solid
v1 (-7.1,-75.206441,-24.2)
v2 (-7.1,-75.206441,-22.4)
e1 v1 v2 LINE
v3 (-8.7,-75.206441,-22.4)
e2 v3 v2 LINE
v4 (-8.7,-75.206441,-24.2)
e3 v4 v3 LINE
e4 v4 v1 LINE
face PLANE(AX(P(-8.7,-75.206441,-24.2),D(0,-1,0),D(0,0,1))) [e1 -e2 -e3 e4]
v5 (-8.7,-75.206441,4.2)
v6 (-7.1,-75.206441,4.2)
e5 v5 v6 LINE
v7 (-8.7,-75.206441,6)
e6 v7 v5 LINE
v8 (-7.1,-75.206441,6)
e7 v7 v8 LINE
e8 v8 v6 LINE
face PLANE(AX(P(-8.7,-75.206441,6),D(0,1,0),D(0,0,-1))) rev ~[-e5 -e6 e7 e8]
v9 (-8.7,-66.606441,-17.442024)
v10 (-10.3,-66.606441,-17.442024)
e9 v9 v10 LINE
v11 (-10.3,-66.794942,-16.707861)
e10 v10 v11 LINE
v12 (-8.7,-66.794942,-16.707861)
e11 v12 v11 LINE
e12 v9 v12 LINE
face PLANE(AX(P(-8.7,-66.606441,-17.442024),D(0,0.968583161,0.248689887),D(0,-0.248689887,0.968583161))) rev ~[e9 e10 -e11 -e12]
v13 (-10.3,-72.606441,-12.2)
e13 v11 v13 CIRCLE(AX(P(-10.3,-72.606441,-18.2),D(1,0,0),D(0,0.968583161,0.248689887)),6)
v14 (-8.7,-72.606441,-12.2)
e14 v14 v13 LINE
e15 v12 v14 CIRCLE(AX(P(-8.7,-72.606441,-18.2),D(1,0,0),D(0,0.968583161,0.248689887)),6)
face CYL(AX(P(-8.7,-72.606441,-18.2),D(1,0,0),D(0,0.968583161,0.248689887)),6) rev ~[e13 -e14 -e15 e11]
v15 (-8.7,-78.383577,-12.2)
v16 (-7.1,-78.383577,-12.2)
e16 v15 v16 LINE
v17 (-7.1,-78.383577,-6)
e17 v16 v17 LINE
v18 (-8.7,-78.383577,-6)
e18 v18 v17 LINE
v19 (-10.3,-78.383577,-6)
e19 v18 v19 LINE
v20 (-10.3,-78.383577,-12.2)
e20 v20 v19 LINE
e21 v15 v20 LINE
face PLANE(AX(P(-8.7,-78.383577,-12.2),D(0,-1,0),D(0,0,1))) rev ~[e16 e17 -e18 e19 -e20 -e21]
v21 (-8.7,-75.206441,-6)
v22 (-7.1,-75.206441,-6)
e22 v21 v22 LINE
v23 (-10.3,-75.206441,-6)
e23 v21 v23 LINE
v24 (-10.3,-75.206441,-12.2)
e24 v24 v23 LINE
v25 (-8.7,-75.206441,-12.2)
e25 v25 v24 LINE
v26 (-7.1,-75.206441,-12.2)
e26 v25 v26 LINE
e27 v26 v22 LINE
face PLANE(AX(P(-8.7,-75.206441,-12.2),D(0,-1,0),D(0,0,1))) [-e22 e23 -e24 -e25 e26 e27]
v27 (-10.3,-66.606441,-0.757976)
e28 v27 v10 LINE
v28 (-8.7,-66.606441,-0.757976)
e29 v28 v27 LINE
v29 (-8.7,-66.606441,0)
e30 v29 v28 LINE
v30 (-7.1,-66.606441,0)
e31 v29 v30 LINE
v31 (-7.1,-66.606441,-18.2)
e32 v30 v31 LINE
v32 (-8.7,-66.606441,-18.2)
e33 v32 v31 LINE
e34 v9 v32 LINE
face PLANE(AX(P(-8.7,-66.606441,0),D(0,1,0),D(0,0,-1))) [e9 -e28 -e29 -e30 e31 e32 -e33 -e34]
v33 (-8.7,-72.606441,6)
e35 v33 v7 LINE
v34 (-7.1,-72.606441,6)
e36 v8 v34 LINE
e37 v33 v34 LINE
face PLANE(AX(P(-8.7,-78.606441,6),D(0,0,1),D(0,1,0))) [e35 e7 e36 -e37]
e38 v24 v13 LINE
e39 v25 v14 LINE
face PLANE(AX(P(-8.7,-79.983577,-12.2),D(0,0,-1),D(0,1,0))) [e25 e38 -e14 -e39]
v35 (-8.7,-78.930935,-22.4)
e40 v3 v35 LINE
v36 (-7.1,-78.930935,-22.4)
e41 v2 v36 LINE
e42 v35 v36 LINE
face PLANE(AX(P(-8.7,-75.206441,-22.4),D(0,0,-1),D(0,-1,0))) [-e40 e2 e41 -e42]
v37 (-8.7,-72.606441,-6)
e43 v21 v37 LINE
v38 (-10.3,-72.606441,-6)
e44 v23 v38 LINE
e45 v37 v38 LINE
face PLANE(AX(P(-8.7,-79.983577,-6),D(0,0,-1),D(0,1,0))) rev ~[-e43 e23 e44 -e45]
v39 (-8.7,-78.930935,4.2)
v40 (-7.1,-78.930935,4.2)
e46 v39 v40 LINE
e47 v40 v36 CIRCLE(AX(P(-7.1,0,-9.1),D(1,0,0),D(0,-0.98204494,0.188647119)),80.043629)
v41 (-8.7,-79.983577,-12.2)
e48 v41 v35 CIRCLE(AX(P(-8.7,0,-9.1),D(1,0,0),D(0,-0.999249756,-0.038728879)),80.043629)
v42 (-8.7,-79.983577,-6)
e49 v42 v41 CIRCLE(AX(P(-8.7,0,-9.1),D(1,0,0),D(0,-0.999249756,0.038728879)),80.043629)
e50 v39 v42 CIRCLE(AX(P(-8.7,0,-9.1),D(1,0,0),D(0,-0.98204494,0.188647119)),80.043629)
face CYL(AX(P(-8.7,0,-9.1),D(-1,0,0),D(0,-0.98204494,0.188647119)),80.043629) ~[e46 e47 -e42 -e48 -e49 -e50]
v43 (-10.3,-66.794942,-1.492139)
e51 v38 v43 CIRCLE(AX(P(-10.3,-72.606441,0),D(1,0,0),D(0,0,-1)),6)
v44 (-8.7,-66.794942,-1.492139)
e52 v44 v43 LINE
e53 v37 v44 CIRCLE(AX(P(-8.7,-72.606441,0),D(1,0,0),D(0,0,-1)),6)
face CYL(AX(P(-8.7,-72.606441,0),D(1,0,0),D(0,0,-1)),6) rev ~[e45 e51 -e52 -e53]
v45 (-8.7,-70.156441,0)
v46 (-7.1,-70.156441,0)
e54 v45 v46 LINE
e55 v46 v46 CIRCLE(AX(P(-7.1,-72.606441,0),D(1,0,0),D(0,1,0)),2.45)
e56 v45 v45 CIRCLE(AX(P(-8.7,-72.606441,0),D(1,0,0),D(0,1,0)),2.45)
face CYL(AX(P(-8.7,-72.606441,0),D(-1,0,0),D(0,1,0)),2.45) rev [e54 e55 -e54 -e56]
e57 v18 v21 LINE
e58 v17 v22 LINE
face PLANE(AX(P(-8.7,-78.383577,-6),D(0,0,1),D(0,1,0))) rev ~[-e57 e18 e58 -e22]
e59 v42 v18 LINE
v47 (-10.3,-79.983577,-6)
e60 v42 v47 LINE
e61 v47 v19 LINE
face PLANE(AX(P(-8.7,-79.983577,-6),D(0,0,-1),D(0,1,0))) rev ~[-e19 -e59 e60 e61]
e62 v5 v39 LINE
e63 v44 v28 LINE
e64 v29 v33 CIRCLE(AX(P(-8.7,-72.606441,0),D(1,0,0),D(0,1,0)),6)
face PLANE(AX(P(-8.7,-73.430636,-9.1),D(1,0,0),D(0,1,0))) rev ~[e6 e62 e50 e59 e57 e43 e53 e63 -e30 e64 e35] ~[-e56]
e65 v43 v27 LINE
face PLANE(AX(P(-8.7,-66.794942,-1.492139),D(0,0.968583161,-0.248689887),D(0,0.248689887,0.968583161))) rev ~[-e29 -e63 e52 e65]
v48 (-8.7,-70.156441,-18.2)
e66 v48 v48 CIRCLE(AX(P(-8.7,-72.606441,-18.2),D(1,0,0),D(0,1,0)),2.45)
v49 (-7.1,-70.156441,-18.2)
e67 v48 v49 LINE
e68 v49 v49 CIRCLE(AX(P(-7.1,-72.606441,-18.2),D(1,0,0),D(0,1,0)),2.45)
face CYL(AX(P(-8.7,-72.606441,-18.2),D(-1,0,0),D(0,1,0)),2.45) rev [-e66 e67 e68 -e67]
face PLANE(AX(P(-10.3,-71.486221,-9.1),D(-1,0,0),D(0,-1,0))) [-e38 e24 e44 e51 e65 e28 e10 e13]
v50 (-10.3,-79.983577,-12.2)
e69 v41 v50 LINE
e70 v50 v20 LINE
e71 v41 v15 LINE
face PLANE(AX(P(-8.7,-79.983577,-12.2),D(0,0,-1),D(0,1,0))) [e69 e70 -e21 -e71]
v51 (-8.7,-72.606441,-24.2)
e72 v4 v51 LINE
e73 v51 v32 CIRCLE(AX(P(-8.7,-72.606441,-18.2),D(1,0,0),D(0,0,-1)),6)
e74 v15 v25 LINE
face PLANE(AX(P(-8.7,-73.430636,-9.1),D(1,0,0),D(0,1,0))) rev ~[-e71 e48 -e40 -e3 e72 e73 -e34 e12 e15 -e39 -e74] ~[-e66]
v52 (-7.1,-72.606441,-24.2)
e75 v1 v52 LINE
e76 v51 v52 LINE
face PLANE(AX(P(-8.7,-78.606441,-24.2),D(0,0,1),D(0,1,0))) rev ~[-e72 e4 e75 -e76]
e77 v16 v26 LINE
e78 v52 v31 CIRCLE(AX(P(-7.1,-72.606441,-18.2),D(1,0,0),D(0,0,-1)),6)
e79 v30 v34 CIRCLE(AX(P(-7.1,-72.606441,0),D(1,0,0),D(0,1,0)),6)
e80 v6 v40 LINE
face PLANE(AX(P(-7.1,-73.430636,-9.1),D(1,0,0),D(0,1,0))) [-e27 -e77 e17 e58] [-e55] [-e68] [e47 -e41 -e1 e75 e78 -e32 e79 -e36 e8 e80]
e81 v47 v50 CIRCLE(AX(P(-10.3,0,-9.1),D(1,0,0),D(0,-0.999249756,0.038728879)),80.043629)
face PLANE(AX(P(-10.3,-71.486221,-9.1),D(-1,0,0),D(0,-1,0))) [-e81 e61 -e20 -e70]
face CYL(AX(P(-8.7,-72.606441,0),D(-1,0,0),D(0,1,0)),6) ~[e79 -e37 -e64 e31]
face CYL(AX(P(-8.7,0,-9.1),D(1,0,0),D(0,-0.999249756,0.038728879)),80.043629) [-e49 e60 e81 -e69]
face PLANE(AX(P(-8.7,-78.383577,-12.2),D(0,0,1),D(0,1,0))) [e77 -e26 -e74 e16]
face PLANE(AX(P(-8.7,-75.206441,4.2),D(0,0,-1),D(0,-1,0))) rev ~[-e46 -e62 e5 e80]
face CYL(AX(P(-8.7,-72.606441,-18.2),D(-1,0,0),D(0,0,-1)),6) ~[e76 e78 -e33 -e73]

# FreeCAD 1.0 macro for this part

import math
import FreeCAD as App
import Part
import Sketcher
Q = App.Units.Quantity

doc = App.newDocument("Part")
body = doc.addObject("PartDesign::Body", "Body")

sketch1 = doc.addObject("Sketcher::SketchObject", "Sketch")
body.addObject(sketch1)
sketch1.AttachmentSupport = (doc.YZ_Plane, [""])
sketch1.MapMode = "FlatFace"
sketch1.AttachmentOffset = App.Placement(App.Vector(0, 0, -8.7), App.Rotation())
sketch1.addGeometry(Part.ArcOfCircle(Part.Circle(App.Vector(72.6, -9.1, 0), App.Vector(0, 0, 1), 80), math.radians(169), math.radians(191)), False)
sketch1.addGeometry(Part.LineSegment(App.Vector(-6, -24.2, 0), App.Vector(0, -24.2, 0)), False)
sketch1.addGeometry(Part.ArcOfCircle(Part.Circle(App.Vector(0, -18.2, 0), App.Vector(0, 0, 1), 6), math.radians(-90), math.radians(0)), False)
sketch1.addGeometry(Part.LineSegment(App.Vector(6, -18.2, 0), App.Vector(6, 0, 0)), False)
sketch1.addGeometry(Part.ArcOfCircle(Part.Circle(App.Vector(0, 0, 0), App.Vector(0, 0, 1), 6), math.radians(0), math.radians(90)), False)
sketch1.addGeometry(Part.LineSegment(App.Vector(0, 6, 0), App.Vector(-6, 6, 0)), False)
sketch1.addGeometry(Part.Circle(App.Vector(0, -18.2, 0), App.Vector(0, 0, 1), 2.5), False)
sketch1.addGeometry(Part.Circle(App.Vector(0, 0, 0), App.Vector(0, 0, 1), 2.5), False)
sketch1.addConstraint(Sketcher.Constraint("Coincident", 0, 2, 1, 1))
sketch1.addConstraint(Sketcher.Constraint("Tangent", 1, 2, 2, 1))
sketch1.addConstraint(Sketcher.Constraint("Tangent", 2, 2, 3, 1))
sketch1.addConstraint(Sketcher.Constraint("Tangent", 3, 2, 4, 1))
sketch1.addConstraint(Sketcher.Constraint("Tangent", 4, 2, 5, 1))
sketch1.addConstraint(Sketcher.Constraint("Coincident", 5, 2, 0, 1))
sketch1.addConstraint(Sketcher.Constraint("Horizontal", 1))
sketch1.addConstraint(Sketcher.Constraint("Vertical", 3))
sketch1.addConstraint(Sketcher.Constraint("Horizontal", 5))
sketch1.addConstraint(Sketcher.Constraint("Coincident", 4, 3, -1, 1))
sketch1.addConstraint(Sketcher.Constraint("Coincident", 7, 3, -1, 1))
sketch1.addConstraint(Sketcher.Constraint("Coincident", 6, 3, 2, 3))
sketch1.addConstraint(Sketcher.Constraint("Equal", 2, 4))
sketch1.addConstraint(Sketcher.Constraint("Equal", 6, 7))
sketch1.addConstraint(Sketcher.Constraint("Vertical", 0, 2, 5, 2))
sketch1.addConstraint(Sketcher.Constraint("Radius", 2, Q("6 mm")))
sketch1.addConstraint(Sketcher.Constraint("Diameter", 6, Q("4.9 mm")))
sketch1.addConstraint(Sketcher.Constraint("DistanceX", 1, 1, 1, 2, Q("6 mm")))
sketch1.addConstraint(Sketcher.Constraint("DistanceY", 3, 1, 3, 2, Q("18.2 mm")))
sketch1.addConstraint(Sketcher.Constraint("Radius", 0, Q("80.043629 mm")))
pad1 = doc.addObject("PartDesign::Pad", "Pad")
body.addObject(pad1)
pad1.Profile = sketch1
pad1.Length = 1.6

sketch2 = doc.addObject("Sketcher::SketchObject", "Sketch001")
body.addObject(sketch2)
sketch2.AttachmentSupport = (doc.YZ_Plane, [""])
sketch2.MapMode = "FlatFace"
sketch2.AttachmentOffset = App.Placement(App.Vector(0, 0, -8.7), App.Rotation())
sketch2.addGeometry(Part.ArcOfCircle(Part.Circle(App.Vector(0, -18.2, 0), App.Vector(0, 0, 1), 6), math.radians(14), math.radians(90)), False)
sketch2.addGeometry(Part.LineSegment(App.Vector(5.8, -16.7, 0), App.Vector(6, -17.4, 0)), False)
sketch2.addGeometry(Part.LineSegment(App.Vector(6, -17.4, 0), App.Vector(6, -0.8, 0)), False)
sketch2.addGeometry(Part.LineSegment(App.Vector(6, -0.8, 0), App.Vector(5.8, -1.5, 0)), False)
sketch2.addGeometry(Part.ArcOfCircle(Part.Circle(App.Vector(0, 0, 0), App.Vector(0, 0, 1), 6), math.radians(-90), math.radians(-14)), False)
sketch2.addGeometry(Part.LineSegment(App.Vector(0, -6, 0), App.Vector(-7.4, -6, 0)), False)
sketch2.addGeometry(Part.ArcOfCircle(Part.Circle(App.Vector(72.6, -9.1, 0), App.Vector(0, 0, 1), 80), math.radians(177.78), math.radians(182.22)), False)
sketch2.addGeometry(Part.LineSegment(App.Vector(-7.4, -12.2, 0), App.Vector(0, -12.2, 0)), False)
sketch2.addConstraint(Sketcher.Constraint("Tangent", 0, 1, 1, 1))
sketch2.addConstraint(Sketcher.Constraint("Coincident", 1, 2, 2, 1))
sketch2.addConstraint(Sketcher.Constraint("Coincident", 2, 2, 3, 1))
sketch2.addConstraint(Sketcher.Constraint("Tangent", 3, 2, 4, 2))
sketch2.addConstraint(Sketcher.Constraint("Tangent", 4, 1, 5, 1))
sketch2.addConstraint(Sketcher.Constraint("Coincident", 5, 2, 6, 1))
sketch2.addConstraint(Sketcher.Constraint("Coincident", 6, 2, 7, 1))
sketch2.addConstraint(Sketcher.Constraint("Tangent", 7, 2, 0, 2))
sketch2.addConstraint(Sketcher.Constraint("Vertical", 2))
sketch2.addConstraint(Sketcher.Constraint("Horizontal", 5))
sketch2.addConstraint(Sketcher.Constraint("Horizontal", 7))
sketch2.addConstraint(Sketcher.Constraint("Coincident", 4, 3, -1, 1))
sketch2.addConstraint(Sketcher.Constraint("Equal", 0, 4))
sketch2.addConstraint(Sketcher.Constraint("PointOnObject", 0, 3, -2))
sketch2.addConstraint(Sketcher.Constraint("Vertical", 0, 1, 3, 2))
sketch2.addConstraint(Sketcher.Constraint("Vertical", 5, 2, 6, 2))
sketch2.addConstraint(Sketcher.Constraint("Radius", 0, Q("6 mm")))
sketch2.addConstraint(Sketcher.Constraint("DistanceX", -1, 1, 1, 2, Q("6 mm")))
sketch2.addConstraint(Sketcher.Constraint("Angle", 1, Q("-75.6 deg")))
sketch2.addConstraint(Sketcher.Constraint("DistanceY", 0, 3, -1, 1, Q("18.2 mm")))
sketch2.addConstraint(Sketcher.Constraint("Radius", 6, Q("80.043629 mm")))
sketch2.addConstraint(Sketcher.Constraint("DistanceX", 5, 2, 5, 1, Q("7.377136 mm")))
pad2 = doc.addObject("PartDesign::Pad", "Pad001")
body.addObject(pad2)
pad2.Profile = sketch2
pad2.Length = 1.6
pad2.Reversed = True

sketch3 = doc.addObject("Sketcher::SketchObject", "Sketch002")
body.addObject(sketch3)
sketch3.AttachmentSupport = (doc.YZ_Plane, [""])
sketch3.MapMode = "FlatFace"
sketch3.AttachmentOffset = App.Placement(App.Vector(0, 0, -8.7), App.Rotation())
sketch3.addGeometry(Part.LineSegment(App.Vector(-2.6, 4.2, 0), App.Vector(-2.6, 6, 0)), False)
sketch3.addGeometry(Part.LineSegment(App.Vector(-2.6, 6, 0), App.Vector(-6, 6, 0)), False)
sketch3.addGeometry(Part.ArcOfCircle(Part.Circle(App.Vector(72.6, -9.1, 0), App.Vector(0, 0, 1), 80), math.radians(169.13), math.radians(170.44)), False)
sketch3.addGeometry(Part.LineSegment(App.Vector(-6.3, 4.2, 0), App.Vector(-2.6, 4.2, 0)), False)
sketch3.addGeometry(Part.LineSegment(App.Vector(-6, -24.2, 0), App.Vector(-2.6, -24.2, 0)), False)
sketch3.addGeometry(Part.LineSegment(App.Vector(-2.6, -24.2, 0), App.Vector(-2.6, -22.4, 0)), False)
sketch3.addGeometry(Part.LineSegment(App.Vector(-2.6, -22.4, 0), App.Vector(-6.3, -22.4, 0)), False)
sketch3.addGeometry(Part.ArcOfCircle(Part.Circle(App.Vector(72.6, -9.1, 0), App.Vector(0, 0, 1), 80), math.radians(-170.44), math.radians(-169.13)), False)
sketch3.addGeometry(Part.LineSegment(App.Vector(-5.8, -6, 0), App.Vector(-5.8, -12.2, 0)), False)
sketch3.addGeometry(Part.LineSegment(App.Vector(-5.8, -12.2, 0), App.Vector(-2.6, -12.2, 0)), False)
sketch3.addGeometry(Part.LineSegment(App.Vector(-2.6, -12.2, 0), App.Vector(-2.6, -6, 0)), False)
sketch3.addGeometry(Part.LineSegment(App.Vector(-2.6, -6, 0), App.Vector(-5.8, -6, 0)), False)
sketch3.addConstraint(Sketcher.Constraint("Coincident", 0, 2, 1, 1))
sketch3.addConstraint(Sketcher.Constraint("Coincident", 1, 2, 2, 1))
sketch3.addConstraint(Sketcher.Constraint("Coincident", 2, 2, 3, 1))
sketch3.addConstraint(Sketcher.Constraint("Coincident", 3, 2, 0, 1))
sketch3.addConstraint(Sketcher.Constraint("Coincident", 4, 2, 5, 1))
sketch3.addConstraint(Sketcher.Constraint("Coincident", 5, 2, 6, 1))
sketch3.addConstraint(Sketcher.Constraint("Coincident", 6, 2, 7, 1))
sketch3.addConstraint(Sketcher.Constraint("Coincident", 7, 2, 4, 1))
sketch3.addConstraint(Sketcher.Constraint("Coincident", 8, 2, 9, 1))
sketch3.addConstraint(Sketcher.Constraint("Coincident", 9, 2, 10, 1))
sketch3.addConstraint(Sketcher.Constraint("Coincident", 10, 2, 11, 1))
sketch3.addConstraint(Sketcher.Constraint("Coincident", 11, 2, 8, 1))
sketch3.addConstraint(Sketcher.Constraint("Vertical", 0))
sketch3.addConstraint(Sketcher.Constraint("Horizontal", 1))
sketch3.addConstraint(Sketcher.Constraint("Horizontal", 3))
sketch3.addConstraint(Sketcher.Constraint("Horizontal", 4))
sketch3.addConstraint(Sketcher.Constraint("Vertical", 5))
sketch3.addConstraint(Sketcher.Constraint("Horizontal", 6))
sketch3.addConstraint(Sketcher.Constraint("Vertical", 8))
sketch3.addConstraint(Sketcher.Constraint("Horizontal", 9))
sketch3.addConstraint(Sketcher.Constraint("Vertical", 10))
sketch3.addConstraint(Sketcher.Constraint("Horizontal", 11))
sketch3.addConstraint(Sketcher.Constraint("Coincident", 7, 3, 2, 3))
sketch3.addConstraint(Sketcher.Constraint("Equal", 2, 7))
sketch3.addConstraint(Sketcher.Constraint("Symmetric", 0, 2, 10, 2, -1))
sketch3.addConstraint(Sketcher.Constraint("Vertical", 3, 2, 4, 2))
sketch3.addConstraint(Sketcher.Constraint("Vertical", 2, 2, 6, 2))
sketch3.addConstraint(Sketcher.Constraint("Vertical", 1, 2, 7, 2))
sketch3.addConstraint(Sketcher.Constraint("DistanceX", 1, 2, 1, 1, Q("3.4 mm")))
sketch3.addConstraint(Sketcher.Constraint("DistanceY", 0, 1, 0, 2, Q("1.8 mm")))
sketch3.addConstraint(Sketcher.Constraint("DistanceY", 8, 2, 8, 1, Q("6.2 mm")))
sketch3.addConstraint(Sketcher.Constraint("DistanceY", -1, 1, 0, 2, Q("6 mm")))
sketch3.addConstraint(Sketcher.Constraint("DistanceX", 1, 2, -1, 1, Q("6 mm")))
sketch3.addConstraint(Sketcher.Constraint("DistanceY", 7, 2, 8, 2, Q("12 mm")))
sketch3.addConstraint(Sketcher.Constraint("Radius", 2, Q("80.043628 mm")))
sketch3.addConstraint(Sketcher.Constraint("DistanceX", 9, 1, 9, 2, Q("3.177136 mm")))
pocket1 = doc.addObject("PartDesign::Pocket", "Pocket")
body.addObject(pocket1)
pocket1.Profile = sketch3
pocket1.Type = "ThroughAll"
pocket1.Midplane = True
body2 = doc.addObject("PartDesign::Body", "Body001")
doc.recompute()

body.Placement = App.Placement(App.Vector(0, -72.606441, 0), App.Rotation(App.Vector(0, 0, 1), 0))
boolean = doc.addObject("PartDesign::Boolean", "Boolean")
body2.addObject(boolean)
boolean.Type = "Fuse"
boolean.addObjects([body])

doc.recompute()
